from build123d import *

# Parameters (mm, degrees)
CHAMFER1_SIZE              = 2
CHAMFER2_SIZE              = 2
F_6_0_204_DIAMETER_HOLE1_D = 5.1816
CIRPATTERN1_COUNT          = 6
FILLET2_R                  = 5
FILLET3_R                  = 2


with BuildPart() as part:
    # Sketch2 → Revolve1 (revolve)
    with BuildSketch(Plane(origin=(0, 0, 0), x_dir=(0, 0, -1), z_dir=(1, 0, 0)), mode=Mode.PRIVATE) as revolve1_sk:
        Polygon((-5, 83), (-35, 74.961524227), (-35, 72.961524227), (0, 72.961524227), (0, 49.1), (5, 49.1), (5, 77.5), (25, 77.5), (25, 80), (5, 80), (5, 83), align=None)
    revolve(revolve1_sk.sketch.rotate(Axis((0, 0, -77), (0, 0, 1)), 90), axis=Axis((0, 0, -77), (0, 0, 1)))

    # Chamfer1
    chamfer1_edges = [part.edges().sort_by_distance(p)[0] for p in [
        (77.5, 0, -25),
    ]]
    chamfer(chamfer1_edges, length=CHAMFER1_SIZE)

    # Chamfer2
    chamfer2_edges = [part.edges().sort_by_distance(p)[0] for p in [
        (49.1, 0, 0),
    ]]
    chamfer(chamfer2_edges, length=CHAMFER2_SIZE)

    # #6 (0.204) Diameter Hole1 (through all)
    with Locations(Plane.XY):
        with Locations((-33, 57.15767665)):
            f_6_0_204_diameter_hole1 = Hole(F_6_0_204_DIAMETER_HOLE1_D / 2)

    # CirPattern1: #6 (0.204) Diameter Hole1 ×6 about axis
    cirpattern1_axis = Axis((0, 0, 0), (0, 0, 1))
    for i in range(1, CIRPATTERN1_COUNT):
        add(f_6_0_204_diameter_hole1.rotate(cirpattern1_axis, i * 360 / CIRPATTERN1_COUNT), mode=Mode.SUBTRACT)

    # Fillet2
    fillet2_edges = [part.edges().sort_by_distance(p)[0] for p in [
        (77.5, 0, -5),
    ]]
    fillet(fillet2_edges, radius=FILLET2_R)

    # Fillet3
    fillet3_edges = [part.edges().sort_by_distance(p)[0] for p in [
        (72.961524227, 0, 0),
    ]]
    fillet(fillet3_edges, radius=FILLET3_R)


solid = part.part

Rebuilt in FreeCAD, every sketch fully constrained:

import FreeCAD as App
import Part
import Sketcher

V = App.Vector
Q = App.Units.Quantity


def edges_at(feature, points):
    """Names of the edges that pass closest to the given points."""
    edges = feature.Shape.Edges
    near = lambda p: min(range(len(edges)), key=lambda i: edges[i].distToShape(Part.Vertex(*p))[0])
    return sorted({f"Edge{near(p) + 1}" for p in points})


def add_polygon(sketch, points):
    """Adds a closed chain of lines whose ends are joined by coincident constraints."""
    first, n = sketch.GeometryCount, len(points)
    for a, b in zip(points, points[1:] + points[:1]):
        sketch.addGeometry(Part.LineSegment(App.Vector(*a, 0), App.Vector(*b, 0)), False)
    for i in range(n):
        sketch.addConstraint(Sketcher.Constraint("Coincident", first + i, 2, first + (i + 1) % n, 1))

doc = App.newDocument("Part")
params = doc.addObject("Spreadsheet::Sheet", "Params")
for row, (alias, value) in enumerate([
    ("sketch1_width", "2 mm"),
    ("sketch1_width2", "3 mm"),
    ("sketch1_height", "35 mm"),
    ("sketch1_height2", "5 mm"),
    ("sketch1_height3", "20 mm"),
    ("revolution_angle", "360 deg"),
    ("chamfer_size", "2 mm"),
    ("chamfer2_size", "2 mm"),
    ("hole_diameter", "5.1816 mm"),
    ("fillet_radius", "5 mm"),
    ("fillet2_radius", "2 mm"),
], start=1):
    params.set(f"A{row}", alias)
    params.set(f"B{row}", "=" + value)
    params.setAlias(f"B{row}", alias)

body = doc.addObject("PartDesign::Body", "Body")

sketch1 = body.newObject("Sketcher::SketchObject", "Sketch")
sketch1.AttachmentSupport = (doc.getObject("YZ_Plane"), [""])
sketch1.MapMode = "FlatFace"
add_polygon(sketch1, [(83, 5), (74.961524, 35), (72.961524, 35), (72.961524, 0), (49.1, 0), (49.1, -5), (77.5, -5), (77.5, -25), (80, -25), (80, -5), (83, -5)])
sketch1.addConstraint(Sketcher.Constraint("Horizontal", 1))
sketch1.addConstraint(Sketcher.Constraint("Vertical", 2))
sketch1.addConstraint(Sketcher.Constraint("Horizontal", 3))
sketch1.addConstraint(Sketcher.Constraint("Vertical", 4))
sketch1.addConstraint(Sketcher.Constraint("Horizontal", 5))
sketch1.addConstraint(Sketcher.Constraint("Vertical", 6))
sketch1.addConstraint(Sketcher.Constraint("Horizontal", 7))
sketch1.addConstraint(Sketcher.Constraint("Vertical", 8))
sketch1.addConstraint(Sketcher.Constraint("Horizontal", 9))
sketch1.addConstraint(Sketcher.Constraint("Vertical", 10))
sketch1.addConstraint(Sketcher.Constraint("PointOnObject", 2, 2, -1))
sketch1.addConstraint(Sketcher.Constraint("Horizontal", 5, 2, 8, 2))
sketch1.addConstraint(Sketcher.Constraint("DistanceX", 1, 2, 1, 1, Q("2 mm")))
sketch1.addConstraint(Sketcher.Constraint("DistanceX", 9, 1, 9, 2, Q("3 mm")))
sketch1.addConstraint(Sketcher.Constraint("DistanceY", 2, 2, 2, 1, Q("35 mm")))
sketch1.addConstraint(Sketcher.Constraint("DistanceY", 4, 2, 4, 1, Q("5 mm")))
sketch1.addConstraint(Sketcher.Constraint("DistanceY", 6, 2, 6, 1, Q("20 mm")))
sketch1.addConstraint(Sketcher.Constraint("DistanceY", 10, 1, 10, 2, Q("10 mm")))
sketch1.addConstraint(Sketcher.Constraint("Angle", 0, Q("105 deg")))
sketch1.addConstraint(Sketcher.Constraint("DistanceX", 5, 1, 5, 2, Q("28.4 mm")))
sketch1.addConstraint(Sketcher.Constraint("DistanceX", 7, 1, 7, 2, Q("2.5 mm")))
sketch1.addConstraint(Sketcher.Constraint("DistanceX", -1, 1, 7, 2, Q("80 mm")))
sketch1.setExpression("Constraints[23]", "Params.sketch1_width")
sketch1.setExpression("Constraints[24]", "Params.sketch1_width2")
sketch1.setExpression("Constraints[25]", "Params.sketch1_height")
sketch1.setExpression("Constraints[26]", "Params.sketch1_height2")
sketch1.setExpression("Constraints[27]", "Params.sketch1_height3")
revolution = body.newObject("PartDesign::Revolution", "Revolution")
revolution.Profile = sketch1
revolution.ReferenceAxis = (sketch1, ["V_Axis"])
revolution.setExpression("Angle", "Params.revolution_angle")
doc.recompute()

chamfer = body.newObject("PartDesign::Chamfer", "Chamfer")
chamfer.Base = (revolution, edges_at(revolution, [(77.5, 0, -25)]))
chamfer.setExpression("Size", "Params.chamfer_size")
doc.recompute()

chamfer2 = body.newObject("PartDesign::Chamfer", "Chamfer001")
chamfer2.Base = (chamfer, edges_at(chamfer, [(49.1, 0, 0)]))
chamfer2.setExpression("Size", "Params.chamfer2_size")

sketch2 = body.newObject("Sketcher::SketchObject", "Sketch001")
sketch2.AttachmentSupport = (doc.getObject("XY_Plane"), [""])
sketch2.MapMode = "FlatFace"
sketch2.addGeometry(Part.Circle(V(-33, 57.157677, 0), V(0, 0, 1), 2.5908), False)
sketch2.addConstraint(Sketcher.Constraint("DistanceX", 0, 3, -1, 1, Q("33 mm")))
sketch2.addConstraint(Sketcher.Constraint("Diameter", 0, Q("5.1816 mm")))
sketch2.addConstraint(Sketcher.Constraint("DistanceY", -1, 1, 0, 3, Q("57.157677 mm")))
doc.recompute()
hole = body.newObject("PartDesign::Hole", "Hole")
hole.Profile = sketch2
hole.ThreadType = "None"
hole.setExpression("Diameter", "Params.hole_diameter")
hole.DepthType = "ThroughAll"
doc.recompute()

polarpattern = body.newObject("PartDesign::PolarPattern", "PolarPattern")
polarpattern.Originals = [hole]
polarpattern.Axis = (doc.getObject("Z_Axis"), [""])
polarpattern.Angle = 360
polarpattern.Occurrences = 6
body.Tip = polarpattern
doc.recompute()

fillet = body.newObject("PartDesign::Fillet", "Fillet")
fillet.Base = (polarpattern, edges_at(polarpattern, [(77.5, 0, -5)]))
fillet.setExpression("Radius", "Params.fillet_radius")
doc.recompute()

fillet2 = body.newObject("PartDesign::Fillet", "Fillet001")
fillet2.Base = (fillet, edges_at(fillet, [(72.962, 0, 0)]))
fillet2.setExpression("Radius", "Params.fillet2_radius")

doc.recompute()
